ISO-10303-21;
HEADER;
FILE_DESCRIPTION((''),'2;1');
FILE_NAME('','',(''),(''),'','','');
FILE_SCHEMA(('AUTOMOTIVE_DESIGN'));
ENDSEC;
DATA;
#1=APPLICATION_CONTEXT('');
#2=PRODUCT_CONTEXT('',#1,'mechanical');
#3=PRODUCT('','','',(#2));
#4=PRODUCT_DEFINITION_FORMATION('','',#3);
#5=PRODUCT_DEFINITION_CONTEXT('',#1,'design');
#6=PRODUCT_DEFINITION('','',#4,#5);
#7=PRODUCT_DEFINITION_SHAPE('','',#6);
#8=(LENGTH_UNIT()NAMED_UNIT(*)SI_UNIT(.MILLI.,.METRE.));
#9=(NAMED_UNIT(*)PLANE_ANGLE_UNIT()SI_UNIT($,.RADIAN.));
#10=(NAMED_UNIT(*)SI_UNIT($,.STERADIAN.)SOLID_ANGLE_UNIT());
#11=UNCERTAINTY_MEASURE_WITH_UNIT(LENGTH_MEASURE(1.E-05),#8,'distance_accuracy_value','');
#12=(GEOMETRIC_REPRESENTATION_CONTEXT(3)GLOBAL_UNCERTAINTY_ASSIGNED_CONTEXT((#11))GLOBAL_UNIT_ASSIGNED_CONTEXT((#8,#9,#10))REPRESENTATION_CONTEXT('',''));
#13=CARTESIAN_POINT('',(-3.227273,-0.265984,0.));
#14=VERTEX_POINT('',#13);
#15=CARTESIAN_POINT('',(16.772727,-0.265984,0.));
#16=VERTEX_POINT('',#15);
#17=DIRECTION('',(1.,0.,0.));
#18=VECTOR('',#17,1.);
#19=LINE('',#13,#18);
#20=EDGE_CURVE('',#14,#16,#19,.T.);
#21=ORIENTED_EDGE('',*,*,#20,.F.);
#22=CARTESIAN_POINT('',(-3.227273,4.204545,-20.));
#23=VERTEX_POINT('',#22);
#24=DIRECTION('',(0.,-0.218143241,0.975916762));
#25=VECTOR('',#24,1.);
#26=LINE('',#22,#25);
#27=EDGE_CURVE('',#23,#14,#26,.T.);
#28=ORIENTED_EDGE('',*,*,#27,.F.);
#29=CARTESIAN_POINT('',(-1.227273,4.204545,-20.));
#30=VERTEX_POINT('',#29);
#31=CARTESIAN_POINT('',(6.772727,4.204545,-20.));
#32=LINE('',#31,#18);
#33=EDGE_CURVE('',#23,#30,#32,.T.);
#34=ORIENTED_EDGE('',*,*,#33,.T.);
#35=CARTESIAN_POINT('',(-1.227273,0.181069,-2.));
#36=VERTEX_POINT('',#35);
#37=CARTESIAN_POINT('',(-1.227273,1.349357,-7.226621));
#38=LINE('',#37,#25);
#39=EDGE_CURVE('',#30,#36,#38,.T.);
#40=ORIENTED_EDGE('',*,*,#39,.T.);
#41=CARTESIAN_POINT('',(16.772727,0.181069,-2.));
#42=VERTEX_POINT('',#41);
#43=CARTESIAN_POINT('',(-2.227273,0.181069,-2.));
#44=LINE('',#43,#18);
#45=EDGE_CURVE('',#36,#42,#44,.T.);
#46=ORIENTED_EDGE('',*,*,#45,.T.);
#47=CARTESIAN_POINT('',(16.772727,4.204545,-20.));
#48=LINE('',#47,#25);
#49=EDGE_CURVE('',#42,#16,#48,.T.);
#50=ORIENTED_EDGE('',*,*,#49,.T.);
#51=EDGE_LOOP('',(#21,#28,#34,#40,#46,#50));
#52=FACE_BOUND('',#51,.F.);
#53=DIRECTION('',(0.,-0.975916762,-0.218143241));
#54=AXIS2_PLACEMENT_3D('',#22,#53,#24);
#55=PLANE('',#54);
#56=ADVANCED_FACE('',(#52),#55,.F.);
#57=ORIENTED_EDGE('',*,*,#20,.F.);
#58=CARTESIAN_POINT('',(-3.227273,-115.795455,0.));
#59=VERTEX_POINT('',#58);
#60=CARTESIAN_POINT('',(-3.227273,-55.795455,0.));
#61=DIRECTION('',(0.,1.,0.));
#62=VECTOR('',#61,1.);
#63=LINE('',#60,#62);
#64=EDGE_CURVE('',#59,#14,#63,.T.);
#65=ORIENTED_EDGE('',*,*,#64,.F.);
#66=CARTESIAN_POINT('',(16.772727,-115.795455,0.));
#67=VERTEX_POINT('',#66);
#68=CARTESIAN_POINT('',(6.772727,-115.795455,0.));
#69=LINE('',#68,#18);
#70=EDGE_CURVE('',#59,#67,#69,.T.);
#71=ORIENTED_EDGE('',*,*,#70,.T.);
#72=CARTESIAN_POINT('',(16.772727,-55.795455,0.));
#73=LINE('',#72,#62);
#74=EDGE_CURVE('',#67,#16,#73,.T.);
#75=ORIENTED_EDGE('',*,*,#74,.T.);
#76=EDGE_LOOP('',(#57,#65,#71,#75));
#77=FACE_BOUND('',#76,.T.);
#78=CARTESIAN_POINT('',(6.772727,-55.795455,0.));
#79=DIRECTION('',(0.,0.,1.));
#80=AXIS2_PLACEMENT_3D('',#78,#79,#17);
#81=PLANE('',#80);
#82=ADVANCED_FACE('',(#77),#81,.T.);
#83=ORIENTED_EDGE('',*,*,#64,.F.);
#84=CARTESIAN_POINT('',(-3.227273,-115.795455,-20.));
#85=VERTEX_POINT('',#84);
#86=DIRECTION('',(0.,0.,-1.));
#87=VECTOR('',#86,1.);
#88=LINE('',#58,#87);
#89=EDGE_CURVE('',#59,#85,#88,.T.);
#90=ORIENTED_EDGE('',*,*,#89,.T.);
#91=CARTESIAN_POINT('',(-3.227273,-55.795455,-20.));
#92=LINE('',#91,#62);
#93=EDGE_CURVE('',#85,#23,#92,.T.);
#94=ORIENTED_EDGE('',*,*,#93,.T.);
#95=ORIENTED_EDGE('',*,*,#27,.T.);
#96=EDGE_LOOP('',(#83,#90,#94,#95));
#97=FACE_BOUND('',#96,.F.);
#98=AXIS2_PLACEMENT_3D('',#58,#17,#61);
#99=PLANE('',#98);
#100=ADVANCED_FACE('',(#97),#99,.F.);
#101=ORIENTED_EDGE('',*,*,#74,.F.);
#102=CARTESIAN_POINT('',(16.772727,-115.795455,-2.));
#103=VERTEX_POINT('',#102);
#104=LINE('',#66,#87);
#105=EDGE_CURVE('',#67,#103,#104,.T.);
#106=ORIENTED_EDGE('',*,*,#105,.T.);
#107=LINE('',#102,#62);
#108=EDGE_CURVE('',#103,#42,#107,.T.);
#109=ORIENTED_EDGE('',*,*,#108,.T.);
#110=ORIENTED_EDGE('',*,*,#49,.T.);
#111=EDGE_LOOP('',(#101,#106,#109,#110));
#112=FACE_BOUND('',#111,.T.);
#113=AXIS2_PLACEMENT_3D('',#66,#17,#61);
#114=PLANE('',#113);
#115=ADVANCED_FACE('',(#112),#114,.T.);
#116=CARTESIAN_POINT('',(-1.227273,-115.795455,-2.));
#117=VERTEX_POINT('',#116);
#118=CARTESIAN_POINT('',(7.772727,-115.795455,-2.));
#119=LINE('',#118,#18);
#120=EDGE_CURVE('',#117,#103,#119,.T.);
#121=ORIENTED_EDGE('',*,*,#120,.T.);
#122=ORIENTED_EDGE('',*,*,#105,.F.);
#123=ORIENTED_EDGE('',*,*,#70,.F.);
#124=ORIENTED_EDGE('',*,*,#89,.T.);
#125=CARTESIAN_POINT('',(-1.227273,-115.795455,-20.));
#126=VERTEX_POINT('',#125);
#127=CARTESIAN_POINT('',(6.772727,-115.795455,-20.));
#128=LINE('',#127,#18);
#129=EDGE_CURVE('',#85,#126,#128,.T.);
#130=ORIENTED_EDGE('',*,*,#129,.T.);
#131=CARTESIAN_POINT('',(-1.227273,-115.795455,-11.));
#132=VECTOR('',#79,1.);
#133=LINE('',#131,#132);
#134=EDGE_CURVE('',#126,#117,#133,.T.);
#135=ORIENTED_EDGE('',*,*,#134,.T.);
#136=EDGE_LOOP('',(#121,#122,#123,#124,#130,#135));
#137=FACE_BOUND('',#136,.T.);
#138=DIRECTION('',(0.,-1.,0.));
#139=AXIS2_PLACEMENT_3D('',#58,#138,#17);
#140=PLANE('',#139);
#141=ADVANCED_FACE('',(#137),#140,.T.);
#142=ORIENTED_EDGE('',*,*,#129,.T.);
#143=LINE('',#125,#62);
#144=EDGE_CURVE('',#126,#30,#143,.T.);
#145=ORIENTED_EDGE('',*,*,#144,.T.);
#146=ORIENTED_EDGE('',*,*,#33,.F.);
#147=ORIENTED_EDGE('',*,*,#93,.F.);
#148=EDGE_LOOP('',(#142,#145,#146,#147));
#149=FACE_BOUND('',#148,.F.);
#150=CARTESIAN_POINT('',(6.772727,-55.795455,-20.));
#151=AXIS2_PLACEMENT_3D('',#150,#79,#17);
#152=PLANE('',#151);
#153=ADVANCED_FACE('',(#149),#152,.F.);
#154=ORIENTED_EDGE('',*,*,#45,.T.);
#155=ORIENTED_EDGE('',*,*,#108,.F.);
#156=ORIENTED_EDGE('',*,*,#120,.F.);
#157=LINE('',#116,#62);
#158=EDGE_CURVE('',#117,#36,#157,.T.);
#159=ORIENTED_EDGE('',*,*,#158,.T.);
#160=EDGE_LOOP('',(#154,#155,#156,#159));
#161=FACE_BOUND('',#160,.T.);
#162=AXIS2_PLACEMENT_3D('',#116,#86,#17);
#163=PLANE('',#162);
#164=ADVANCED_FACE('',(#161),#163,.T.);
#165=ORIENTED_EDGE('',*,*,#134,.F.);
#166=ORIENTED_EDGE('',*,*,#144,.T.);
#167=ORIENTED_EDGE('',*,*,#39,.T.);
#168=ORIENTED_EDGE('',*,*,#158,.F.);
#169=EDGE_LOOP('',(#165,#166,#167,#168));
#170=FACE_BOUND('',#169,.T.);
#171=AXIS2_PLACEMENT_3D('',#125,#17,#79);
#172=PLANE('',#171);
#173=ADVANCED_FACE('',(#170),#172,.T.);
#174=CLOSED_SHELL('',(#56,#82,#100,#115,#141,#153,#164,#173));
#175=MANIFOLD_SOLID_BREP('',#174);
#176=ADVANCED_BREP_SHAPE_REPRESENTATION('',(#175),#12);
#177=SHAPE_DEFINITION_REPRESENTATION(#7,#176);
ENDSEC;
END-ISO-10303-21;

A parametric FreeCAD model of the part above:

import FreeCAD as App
import Part
import Sketcher

V = App.Vector
Q = App.Units.Quantity

doc = App.newDocument("Part")
body = doc.addObject("PartDesign::Body", "Body")

sketch1 = doc.addObject("Sketcher::SketchObject", "Sketch")
body.addObject(sketch1)
sketch1.AttachmentSupport = (doc.XY_Plane, [""])
sketch1.MapMode = "FlatFace"
sketch1.addGeometry(Part.LineSegment(V(-3.227273, 4.204545, 0), V(-3.227273, -115.795455, 0)), False)
sketch1.addGeometry(Part.LineSegment(V(-3.227273, -115.795455, 0), V(16.772727, -115.795455, 0)), False)
sketch1.addGeometry(Part.LineSegment(V(16.772727, -115.795455, 0), V(16.772727, 4.204545, 0)), False)
sketch1.addGeometry(Part.LineSegment(V(16.772727, 4.204545, 0), V(-3.227273, 4.204545, 0)), False)
sketch1.addConstraint(Sketcher.Constraint("Coincident", 0, 2, 1, 1))
sketch1.addConstraint(Sketcher.Constraint("Coincident", 1, 2, 2, 1))
sketch1.addConstraint(Sketcher.Constraint("Coincident", 2, 2, 3, 1))
sketch1.addConstraint(Sketcher.Constraint("Coincident", 3, 2, 0, 1))
sketch1.addConstraint(Sketcher.Constraint("Vertical", 0))
sketch1.addConstraint(Sketcher.Constraint("Horizontal", 1))
sketch1.addConstraint(Sketcher.Constraint("Vertical", 2))
sketch1.addConstraint(Sketcher.Constraint("Horizontal", 3))
sketch1.addConstraint(Sketcher.Constraint("DistanceX", 1, 1, 1, 2, Q("20 mm")))
sketch1.addConstraint(Sketcher.Constraint("DistanceY", 0, 2, 0, 1, Q("120 mm")))
sketch1.addConstraint(Sketcher.Constraint("DistanceX", 0, 2, -1, 1, Q("3.227273 mm")))
sketch1.addConstraint(Sketcher.Constraint("DistanceY", 0, 2, -1, 1, Q("115.795455 mm")))
pad1 = doc.addObject("PartDesign::Pad", "Pad")
body.addObject(pad1)
pad1.Profile = sketch1
pad1.Length = 20
pad1.Reversed = True

sketch2 = doc.addObject("Sketcher::SketchObject", "Sketch001")
body.addObject(sketch2)
sketch2.AttachmentSupport = (doc.YZ_Plane, [""])
sketch2.MapMode = "FlatFace"
sketch2.AttachmentOffset = App.Placement(V(0, 0, -3.227273), App.Rotation())
sketch2.addGeometry(Part.LineSegment(V(4.204545, -20, 0), V(-0.265984, 0, 0)), False)
sketch2.addGeometry(Part.LineSegment(V(-0.265984, 0, 0), V(4.204545, 0, 0)), False)
sketch2.addGeometry(Part.LineSegment(V(4.204545, 0, 0), V(4.204545, -20, 0)), False)
sketch2.addConstraint(Sketcher.Constraint("Coincident", 0, 2, 1, 1))
sketch2.addConstraint(Sketcher.Constraint("Coincident", 1, 2, 2, 1))
sketch2.addConstraint(Sketcher.Constraint("Coincident", 2, 2, 0, 1))
sketch2.addConstraint(Sketcher.Constraint("Horizontal", 1))
sketch2.addConstraint(Sketcher.Constraint("Vertical", 2))
sketch2.addConstraint(Sketcher.Constraint("PointOnObject", 0, 2, -1))
sketch2.addConstraint(Sketcher.Constraint("DistanceY", 2, 2, 2, 1, Q("20 mm")))
sketch2.addConstraint(Sketcher.Constraint("Angle", 0, Q("102.6 deg")))
sketch2.addConstraint(Sketcher.Constraint("DistanceX", 0, 2, -1, 1, Q("0.265984 mm")))
pocket1 = doc.addObject("PartDesign::Pocket", "Pocket")
body.addObject(pocket1)
pocket1.Profile = sketch2
pocket1.Length = 20
pocket1.Reversed = True

sketch3 = doc.addObject("Sketcher::SketchObject", "Sketch002")
body.addObject(sketch3)
sketch3.AttachmentSupport = (doc.XZ_Plane, [""])
sketch3.MapMode = "FlatFace"
sketch3.AttachmentOffset = App.Placement(V(0, 0, 115.795455), App.Rotation())
sketch3.addGeometry(Part.LineSegment(V(-1.227273, -2, 0), V(-1.227273, -20, 0)), False)
sketch3.addGeometry(Part.LineSegment(V(-1.227273, -20, 0), V(16.772727, -20, 0)), False)
sketch3.addGeometry(Part.LineSegment(V(16.772727, -20, 0), V(16.772727, -2, 0)), False)
sketch3.addGeometry(Part.LineSegment(V(16.772727, -2, 0), V(-1.227273, -2, 0)), False)
sketch3.addConstraint(Sketcher.Constraint("Coincident", 0, 2, 1, 1))
sketch3.addConstraint(Sketcher.Constraint("Coincident", 1, 2, 2, 1))
sketch3.addConstraint(Sketcher.Constraint("Coincident", 2, 2, 3, 1))
sketch3.addConstraint(Sketcher.Constraint("Coincident", 3, 2, 0, 1))
sketch3.addConstraint(Sketcher.Constraint("Vertical", 0))
sketch3.addConstraint(Sketcher.Constraint("Horizontal", 1))
sketch3.addConstraint(Sketcher.Constraint("Vertical", 2))
sketch3.addConstraint(Sketcher.Constraint("Horizontal", 3))
sketch3.addConstraint(Sketcher.Constraint("Equal", 3, 0))
sketch3.addConstraint(Sketcher.Constraint("DistanceX", 1, 1, 1, 2, Q("18 mm")))
sketch3.addConstraint(Sketcher.Constraint("DistanceY", 0, 2, -1, 1, Q("20 mm")))
sketch3.addConstraint(Sketcher.Constraint("DistanceX", 0, 2, -1, 1, Q("1.227273 mm")))
pocket2 = doc.addObject("PartDesign::Pocket", "Pocket001")
body.addObject(pocket2)
pocket2.Profile = sketch3
pocket2.Length = 120

doc.recompute()
